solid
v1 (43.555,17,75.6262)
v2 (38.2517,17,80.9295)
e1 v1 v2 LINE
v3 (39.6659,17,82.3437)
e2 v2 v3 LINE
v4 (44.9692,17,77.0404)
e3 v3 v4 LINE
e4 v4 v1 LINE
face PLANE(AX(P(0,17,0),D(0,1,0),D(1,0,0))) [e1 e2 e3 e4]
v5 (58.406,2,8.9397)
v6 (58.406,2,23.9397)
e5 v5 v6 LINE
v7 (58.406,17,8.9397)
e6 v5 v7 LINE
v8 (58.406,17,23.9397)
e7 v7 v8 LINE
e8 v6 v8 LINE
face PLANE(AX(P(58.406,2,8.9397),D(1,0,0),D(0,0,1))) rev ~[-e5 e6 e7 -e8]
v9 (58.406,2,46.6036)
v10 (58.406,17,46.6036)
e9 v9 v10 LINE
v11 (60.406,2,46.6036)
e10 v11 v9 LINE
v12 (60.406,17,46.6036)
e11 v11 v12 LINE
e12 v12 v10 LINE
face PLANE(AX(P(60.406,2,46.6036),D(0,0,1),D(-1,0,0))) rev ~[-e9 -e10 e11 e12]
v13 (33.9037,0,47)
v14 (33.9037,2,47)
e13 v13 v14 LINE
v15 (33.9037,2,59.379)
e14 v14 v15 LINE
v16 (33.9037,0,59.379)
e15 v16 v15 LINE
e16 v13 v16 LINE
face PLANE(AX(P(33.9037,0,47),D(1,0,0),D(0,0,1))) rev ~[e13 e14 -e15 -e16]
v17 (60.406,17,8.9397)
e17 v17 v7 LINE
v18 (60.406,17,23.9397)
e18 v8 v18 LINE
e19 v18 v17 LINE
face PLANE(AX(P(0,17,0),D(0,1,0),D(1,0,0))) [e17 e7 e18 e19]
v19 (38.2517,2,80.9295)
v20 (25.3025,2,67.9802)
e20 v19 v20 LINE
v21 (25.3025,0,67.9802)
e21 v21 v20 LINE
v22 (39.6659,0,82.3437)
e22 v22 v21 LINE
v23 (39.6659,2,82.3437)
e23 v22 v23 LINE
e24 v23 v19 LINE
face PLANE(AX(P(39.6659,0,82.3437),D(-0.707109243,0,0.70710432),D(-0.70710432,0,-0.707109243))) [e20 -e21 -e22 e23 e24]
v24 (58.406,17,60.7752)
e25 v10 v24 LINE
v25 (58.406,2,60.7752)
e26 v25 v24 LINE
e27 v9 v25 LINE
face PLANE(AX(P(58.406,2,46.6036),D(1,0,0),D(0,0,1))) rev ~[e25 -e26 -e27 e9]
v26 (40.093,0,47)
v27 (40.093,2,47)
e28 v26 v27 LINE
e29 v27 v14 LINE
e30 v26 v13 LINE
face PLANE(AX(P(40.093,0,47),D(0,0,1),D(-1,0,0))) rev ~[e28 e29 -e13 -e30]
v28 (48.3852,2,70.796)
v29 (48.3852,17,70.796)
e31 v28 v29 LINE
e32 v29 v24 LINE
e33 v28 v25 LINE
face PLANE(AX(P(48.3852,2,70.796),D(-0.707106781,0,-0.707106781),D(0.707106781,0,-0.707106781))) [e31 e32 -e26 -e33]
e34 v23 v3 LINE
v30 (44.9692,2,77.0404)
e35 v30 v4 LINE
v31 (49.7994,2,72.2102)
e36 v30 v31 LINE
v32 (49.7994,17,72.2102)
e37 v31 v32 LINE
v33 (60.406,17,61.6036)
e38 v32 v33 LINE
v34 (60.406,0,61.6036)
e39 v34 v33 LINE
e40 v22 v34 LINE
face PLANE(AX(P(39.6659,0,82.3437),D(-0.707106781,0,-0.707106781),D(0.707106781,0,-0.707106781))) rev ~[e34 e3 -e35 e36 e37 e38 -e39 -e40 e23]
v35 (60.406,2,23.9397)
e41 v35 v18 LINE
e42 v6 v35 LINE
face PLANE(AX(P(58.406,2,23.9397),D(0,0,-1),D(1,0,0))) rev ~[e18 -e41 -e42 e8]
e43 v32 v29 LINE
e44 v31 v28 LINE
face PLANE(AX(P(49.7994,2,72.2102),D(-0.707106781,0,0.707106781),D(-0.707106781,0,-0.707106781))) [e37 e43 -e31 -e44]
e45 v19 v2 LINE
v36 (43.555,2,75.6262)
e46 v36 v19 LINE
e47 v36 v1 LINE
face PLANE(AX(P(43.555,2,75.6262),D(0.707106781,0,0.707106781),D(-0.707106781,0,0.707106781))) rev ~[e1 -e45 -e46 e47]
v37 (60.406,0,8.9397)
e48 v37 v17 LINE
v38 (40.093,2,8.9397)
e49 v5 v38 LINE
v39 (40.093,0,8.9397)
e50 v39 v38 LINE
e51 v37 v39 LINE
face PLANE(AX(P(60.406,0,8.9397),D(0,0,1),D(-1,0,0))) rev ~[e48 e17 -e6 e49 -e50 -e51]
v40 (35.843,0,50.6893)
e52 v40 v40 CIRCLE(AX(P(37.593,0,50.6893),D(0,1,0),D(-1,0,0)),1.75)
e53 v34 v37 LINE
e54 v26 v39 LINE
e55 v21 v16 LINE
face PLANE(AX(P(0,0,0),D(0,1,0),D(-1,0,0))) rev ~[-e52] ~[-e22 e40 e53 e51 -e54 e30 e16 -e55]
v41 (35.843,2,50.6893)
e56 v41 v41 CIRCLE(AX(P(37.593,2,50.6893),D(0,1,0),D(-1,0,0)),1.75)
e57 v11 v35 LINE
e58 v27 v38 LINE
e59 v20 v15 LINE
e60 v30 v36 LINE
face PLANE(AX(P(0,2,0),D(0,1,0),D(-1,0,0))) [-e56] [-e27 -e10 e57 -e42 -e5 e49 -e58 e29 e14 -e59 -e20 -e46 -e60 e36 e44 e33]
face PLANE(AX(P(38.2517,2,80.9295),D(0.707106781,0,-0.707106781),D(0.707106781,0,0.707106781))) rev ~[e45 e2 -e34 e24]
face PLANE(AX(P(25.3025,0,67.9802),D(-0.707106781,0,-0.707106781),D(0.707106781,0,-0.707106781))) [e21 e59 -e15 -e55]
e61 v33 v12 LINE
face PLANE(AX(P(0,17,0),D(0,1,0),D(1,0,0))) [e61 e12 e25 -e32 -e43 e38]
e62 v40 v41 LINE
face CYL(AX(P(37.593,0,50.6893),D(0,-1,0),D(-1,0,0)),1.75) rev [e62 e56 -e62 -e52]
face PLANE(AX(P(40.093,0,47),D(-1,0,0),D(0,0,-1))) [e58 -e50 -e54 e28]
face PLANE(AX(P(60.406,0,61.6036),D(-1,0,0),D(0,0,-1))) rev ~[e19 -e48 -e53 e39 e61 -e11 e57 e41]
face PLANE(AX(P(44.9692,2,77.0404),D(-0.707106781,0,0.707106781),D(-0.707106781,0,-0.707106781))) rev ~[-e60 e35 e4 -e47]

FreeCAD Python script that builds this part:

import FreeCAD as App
import Part
import Sketcher
Q = App.Units.Quantity

doc = App.newDocument("Part")
body = doc.addObject("PartDesign::Body", "Body")

# Sketch on XZ plane
sketch1 = body.newObject("Sketcher::SketchObject", "Sketch")
sketch1.AttachmentSupport = (doc.getObject("XZ_Plane"), [""])
sketch1.MapMode = "FlatFace"
sketch1.addGeometry([
    Part.LineSegment(App.Vector(25.3, 68, 0), App.Vector(39.7, 82.3, 0)),  # 0
    Part.LineSegment(App.Vector(39.7, 82.3, 0), App.Vector(60.4, 61.6, 0)),  # 1
    Part.LineSegment(App.Vector(60.4, 61.6, 0), App.Vector(60.4, 8.9, 0)),  # 2
    Part.LineSegment(App.Vector(60.4, 8.9, 0), App.Vector(40.1, 8.9, 0)),  # 3
    Part.LineSegment(App.Vector(40.1, 8.9, 0), App.Vector(40.1, 47, 0)),  # 4
    Part.LineSegment(App.Vector(40.1, 47, 0), App.Vector(33.9, 47, 0)),  # 5
    Part.LineSegment(App.Vector(33.9, 47, 0), App.Vector(33.9, 59.4, 0)),  # 6
    Part.LineSegment(App.Vector(33.9, 59.4, 0), App.Vector(25.3, 68, 0)),  # 7
    Part.Circle(App.Vector(37.6, 50.7, 0), App.Vector(0, 0, 1), 1.8),  # 8
], False)
sketch1.addConstraint([
    Sketcher.Constraint("Coincident", 0, 2, 1, 1),
    Sketcher.Constraint("Coincident", 1, 2, 2, 1),
    Sketcher.Constraint("Coincident", 2, 2, 3, 1),
    Sketcher.Constraint("Coincident", 3, 2, 4, 1),
    Sketcher.Constraint("Coincident", 4, 2, 5, 1),
    Sketcher.Constraint("Coincident", 5, 2, 6, 1),
    Sketcher.Constraint("Coincident", 6, 2, 7, 1),
    Sketcher.Constraint("Coincident", 7, 2, 0, 1),
    Sketcher.Constraint("Vertical", 2),
    Sketcher.Constraint("Horizontal", 3),
    Sketcher.Constraint("Vertical", 4),
    Sketcher.Constraint("Horizontal", 5),
    Sketcher.Constraint("Vertical", 6),
    Sketcher.Constraint("Perpendicular", 0, 1),
    Sketcher.Constraint("Parallel", 1, 7),
    Sketcher.Constraint("Diameter", 8, 3.5),
    Sketcher.Constraint("Angle", 0, Q("45.0002 deg")),
    Sketcher.Constraint("DistanceY", -1, 1, 4, 2, 47.0),
    Sketcher.Constraint("DistanceX", 8, 3, 3, 2, 2.5),
    Sketcher.Constraint("DistanceX", 3, 2, 3, 1, 20.313),
    Sketcher.Constraint("DistanceY", 2, 2, 2, 1, 52.664),
    Sketcher.Constraint("DistanceY", 6, 1, 6, 2, 12.379),
    Sketcher.Constraint("DistanceX", 0, 2, 1, 2, 20.74),
    Sketcher.Constraint("Distance", 0, 20.313),
    Sketcher.Constraint("Distance", 7, 12.164),
    Sketcher.Constraint("DistanceX", -1, 1, 8, 3, 37.593),
    Sketcher.Constraint("DistanceY", 8, 3, 7, 2, 17.291),
])
pad1 = body.newObject("PartDesign::Pad", "Pad")
pad1.Profile = sketch1
pad1.Length = 2
pad1.Reversed = True

# Sketch on XZ plane
sketch2 = body.newObject("Sketcher::SketchObject", "Sketch001")
sketch2.AttachmentSupport = (doc.getObject("XZ_Plane"), [""])
sketch2.MapMode = "FlatFace"
sketch2.AttachmentOffset = App.Placement(App.Vector(0, 0, -2), App.Rotation())
sketch2.addGeometry([
    Part.LineSegment(App.Vector(38.3, 80.9, 0), App.Vector(39.7, 82.3, 0)),  # 0
    Part.LineSegment(App.Vector(39.7, 82.3, 0), App.Vector(45, 77, 0)),  # 1
    Part.LineSegment(App.Vector(45, 77, 0), App.Vector(43.6, 75.6, 0)),  # 2
    Part.LineSegment(App.Vector(43.6, 75.6, 0), App.Vector(38.3, 80.9, 0)),  # 3
    Part.LineSegment(App.Vector(58.4, 23.9, 0), App.Vector(60.4, 23.9, 0)),  # 4
    Part.LineSegment(App.Vector(60.4, 23.9, 0), App.Vector(60.4, 8.9, 0)),  # 5
    Part.LineSegment(App.Vector(60.4, 8.9, 0), App.Vector(58.4, 8.9, 0)),  # 6
    Part.LineSegment(App.Vector(58.4, 8.9, 0), App.Vector(58.4, 23.9, 0)),  # 7
    Part.LineSegment(App.Vector(48.4, 70.8, 0), App.Vector(49.8, 72.2, 0)),  # 8
    Part.LineSegment(App.Vector(49.8, 72.2, 0), App.Vector(60.4, 61.6, 0)),  # 9
    Part.LineSegment(App.Vector(60.4, 61.6, 0), App.Vector(60.4, 46.6, 0)),  # 10
    Part.LineSegment(App.Vector(60.4, 46.6, 0), App.Vector(58.4, 46.6, 0)),  # 11
    Part.LineSegment(App.Vector(58.4, 46.6, 0), App.Vector(58.4, 60.8, 0)),  # 12
    Part.LineSegment(App.Vector(58.4, 60.8, 0), App.Vector(48.4, 70.8, 0)),  # 13
], False)
sketch2.addConstraint([
    Sketcher.Constraint("Coincident", 0, 2, 1, 1),
    Sketcher.Constraint("Coincident", 1, 2, 2, 1),
    Sketcher.Constraint("Coincident", 2, 2, 3, 1),
    Sketcher.Constraint("Coincident", 3, 2, 0, 1),
    Sketcher.Constraint("Coincident", 4, 2, 5, 1),
    Sketcher.Constraint("Coincident", 5, 2, 6, 1),
    Sketcher.Constraint("Coincident", 6, 2, 7, 1),
    Sketcher.Constraint("Coincident", 7, 2, 4, 1),
    Sketcher.Constraint("Coincident", 8, 2, 9, 1),
    Sketcher.Constraint("Coincident", 9, 2, 10, 1),
    Sketcher.Constraint("Coincident", 10, 2, 11, 1),
    Sketcher.Constraint("Coincident", 11, 2, 12, 1),
    Sketcher.Constraint("Coincident", 12, 2, 13, 1),
    Sketcher.Constraint("Coincident", 13, 2, 8, 1),
    Sketcher.Constraint("Horizontal", 4),
    Sketcher.Constraint("Vertical", 5),
    Sketcher.Constraint("Horizontal", 6),
    Sketcher.Constraint("Vertical", 7),
    Sketcher.Constraint("Vertical", 10),
    Sketcher.Constraint("Horizontal", 11),
    Sketcher.Constraint("Vertical", 12),
    Sketcher.Constraint("Perpendicular", 0, 1),
    Sketcher.Constraint("Perpendicular", 1, 2),
    Sketcher.Constraint("Perpendicular", 2, 3),
    Sketcher.Constraint("Perpendicular", 3, 8),
    Sketcher.Constraint("Perpendicular", 8, 9),
    Sketcher.Constraint("Parallel", 9, 13),
    Sketcher.Constraint("Vertical", 5, 2, 9, 2),
    Sketcher.Constraint("Vertical", 7, 2, 11, 2),
    Sketcher.Constraint("Equal", 7, 10),
    Sketcher.Constraint("Equal", 2, 8),
    Sketcher.Constraint("DistanceX", 4, 1, 4, 2, 2.0),
    Sketcher.Constraint("DistanceY", 5, 2, 5, 1, 15.0),
    Sketcher.Constraint("Angle", 0, Q("45 deg")),
    Sketcher.Constraint("Distance", 0, 2.0),
    Sketcher.Constraint("Distance", 9, 15.0),
    Sketcher.Constraint("Distance", 1, 7.5),
    Sketcher.Constraint("DistanceX", 0, 2, 4, 2, 20.74),
    Sketcher.Constraint("DistanceY", 9, 2, 0, 2, 20.74),
    Sketcher.Constraint("DistanceX", -1, 1, 0, 2, 39.666),
    Sketcher.Constraint("DistanceY", -1, 1, 13, 2, 70.796),
    Sketcher.Constraint("DistanceY", 4, 2, 0, 2, 58.404),
])
pad2 = body.newObject("PartDesign::Pad", "Pad001")
pad2.Profile = sketch2
pad2.Length = 15
pad2.Reversed = True

doc.recompute()
